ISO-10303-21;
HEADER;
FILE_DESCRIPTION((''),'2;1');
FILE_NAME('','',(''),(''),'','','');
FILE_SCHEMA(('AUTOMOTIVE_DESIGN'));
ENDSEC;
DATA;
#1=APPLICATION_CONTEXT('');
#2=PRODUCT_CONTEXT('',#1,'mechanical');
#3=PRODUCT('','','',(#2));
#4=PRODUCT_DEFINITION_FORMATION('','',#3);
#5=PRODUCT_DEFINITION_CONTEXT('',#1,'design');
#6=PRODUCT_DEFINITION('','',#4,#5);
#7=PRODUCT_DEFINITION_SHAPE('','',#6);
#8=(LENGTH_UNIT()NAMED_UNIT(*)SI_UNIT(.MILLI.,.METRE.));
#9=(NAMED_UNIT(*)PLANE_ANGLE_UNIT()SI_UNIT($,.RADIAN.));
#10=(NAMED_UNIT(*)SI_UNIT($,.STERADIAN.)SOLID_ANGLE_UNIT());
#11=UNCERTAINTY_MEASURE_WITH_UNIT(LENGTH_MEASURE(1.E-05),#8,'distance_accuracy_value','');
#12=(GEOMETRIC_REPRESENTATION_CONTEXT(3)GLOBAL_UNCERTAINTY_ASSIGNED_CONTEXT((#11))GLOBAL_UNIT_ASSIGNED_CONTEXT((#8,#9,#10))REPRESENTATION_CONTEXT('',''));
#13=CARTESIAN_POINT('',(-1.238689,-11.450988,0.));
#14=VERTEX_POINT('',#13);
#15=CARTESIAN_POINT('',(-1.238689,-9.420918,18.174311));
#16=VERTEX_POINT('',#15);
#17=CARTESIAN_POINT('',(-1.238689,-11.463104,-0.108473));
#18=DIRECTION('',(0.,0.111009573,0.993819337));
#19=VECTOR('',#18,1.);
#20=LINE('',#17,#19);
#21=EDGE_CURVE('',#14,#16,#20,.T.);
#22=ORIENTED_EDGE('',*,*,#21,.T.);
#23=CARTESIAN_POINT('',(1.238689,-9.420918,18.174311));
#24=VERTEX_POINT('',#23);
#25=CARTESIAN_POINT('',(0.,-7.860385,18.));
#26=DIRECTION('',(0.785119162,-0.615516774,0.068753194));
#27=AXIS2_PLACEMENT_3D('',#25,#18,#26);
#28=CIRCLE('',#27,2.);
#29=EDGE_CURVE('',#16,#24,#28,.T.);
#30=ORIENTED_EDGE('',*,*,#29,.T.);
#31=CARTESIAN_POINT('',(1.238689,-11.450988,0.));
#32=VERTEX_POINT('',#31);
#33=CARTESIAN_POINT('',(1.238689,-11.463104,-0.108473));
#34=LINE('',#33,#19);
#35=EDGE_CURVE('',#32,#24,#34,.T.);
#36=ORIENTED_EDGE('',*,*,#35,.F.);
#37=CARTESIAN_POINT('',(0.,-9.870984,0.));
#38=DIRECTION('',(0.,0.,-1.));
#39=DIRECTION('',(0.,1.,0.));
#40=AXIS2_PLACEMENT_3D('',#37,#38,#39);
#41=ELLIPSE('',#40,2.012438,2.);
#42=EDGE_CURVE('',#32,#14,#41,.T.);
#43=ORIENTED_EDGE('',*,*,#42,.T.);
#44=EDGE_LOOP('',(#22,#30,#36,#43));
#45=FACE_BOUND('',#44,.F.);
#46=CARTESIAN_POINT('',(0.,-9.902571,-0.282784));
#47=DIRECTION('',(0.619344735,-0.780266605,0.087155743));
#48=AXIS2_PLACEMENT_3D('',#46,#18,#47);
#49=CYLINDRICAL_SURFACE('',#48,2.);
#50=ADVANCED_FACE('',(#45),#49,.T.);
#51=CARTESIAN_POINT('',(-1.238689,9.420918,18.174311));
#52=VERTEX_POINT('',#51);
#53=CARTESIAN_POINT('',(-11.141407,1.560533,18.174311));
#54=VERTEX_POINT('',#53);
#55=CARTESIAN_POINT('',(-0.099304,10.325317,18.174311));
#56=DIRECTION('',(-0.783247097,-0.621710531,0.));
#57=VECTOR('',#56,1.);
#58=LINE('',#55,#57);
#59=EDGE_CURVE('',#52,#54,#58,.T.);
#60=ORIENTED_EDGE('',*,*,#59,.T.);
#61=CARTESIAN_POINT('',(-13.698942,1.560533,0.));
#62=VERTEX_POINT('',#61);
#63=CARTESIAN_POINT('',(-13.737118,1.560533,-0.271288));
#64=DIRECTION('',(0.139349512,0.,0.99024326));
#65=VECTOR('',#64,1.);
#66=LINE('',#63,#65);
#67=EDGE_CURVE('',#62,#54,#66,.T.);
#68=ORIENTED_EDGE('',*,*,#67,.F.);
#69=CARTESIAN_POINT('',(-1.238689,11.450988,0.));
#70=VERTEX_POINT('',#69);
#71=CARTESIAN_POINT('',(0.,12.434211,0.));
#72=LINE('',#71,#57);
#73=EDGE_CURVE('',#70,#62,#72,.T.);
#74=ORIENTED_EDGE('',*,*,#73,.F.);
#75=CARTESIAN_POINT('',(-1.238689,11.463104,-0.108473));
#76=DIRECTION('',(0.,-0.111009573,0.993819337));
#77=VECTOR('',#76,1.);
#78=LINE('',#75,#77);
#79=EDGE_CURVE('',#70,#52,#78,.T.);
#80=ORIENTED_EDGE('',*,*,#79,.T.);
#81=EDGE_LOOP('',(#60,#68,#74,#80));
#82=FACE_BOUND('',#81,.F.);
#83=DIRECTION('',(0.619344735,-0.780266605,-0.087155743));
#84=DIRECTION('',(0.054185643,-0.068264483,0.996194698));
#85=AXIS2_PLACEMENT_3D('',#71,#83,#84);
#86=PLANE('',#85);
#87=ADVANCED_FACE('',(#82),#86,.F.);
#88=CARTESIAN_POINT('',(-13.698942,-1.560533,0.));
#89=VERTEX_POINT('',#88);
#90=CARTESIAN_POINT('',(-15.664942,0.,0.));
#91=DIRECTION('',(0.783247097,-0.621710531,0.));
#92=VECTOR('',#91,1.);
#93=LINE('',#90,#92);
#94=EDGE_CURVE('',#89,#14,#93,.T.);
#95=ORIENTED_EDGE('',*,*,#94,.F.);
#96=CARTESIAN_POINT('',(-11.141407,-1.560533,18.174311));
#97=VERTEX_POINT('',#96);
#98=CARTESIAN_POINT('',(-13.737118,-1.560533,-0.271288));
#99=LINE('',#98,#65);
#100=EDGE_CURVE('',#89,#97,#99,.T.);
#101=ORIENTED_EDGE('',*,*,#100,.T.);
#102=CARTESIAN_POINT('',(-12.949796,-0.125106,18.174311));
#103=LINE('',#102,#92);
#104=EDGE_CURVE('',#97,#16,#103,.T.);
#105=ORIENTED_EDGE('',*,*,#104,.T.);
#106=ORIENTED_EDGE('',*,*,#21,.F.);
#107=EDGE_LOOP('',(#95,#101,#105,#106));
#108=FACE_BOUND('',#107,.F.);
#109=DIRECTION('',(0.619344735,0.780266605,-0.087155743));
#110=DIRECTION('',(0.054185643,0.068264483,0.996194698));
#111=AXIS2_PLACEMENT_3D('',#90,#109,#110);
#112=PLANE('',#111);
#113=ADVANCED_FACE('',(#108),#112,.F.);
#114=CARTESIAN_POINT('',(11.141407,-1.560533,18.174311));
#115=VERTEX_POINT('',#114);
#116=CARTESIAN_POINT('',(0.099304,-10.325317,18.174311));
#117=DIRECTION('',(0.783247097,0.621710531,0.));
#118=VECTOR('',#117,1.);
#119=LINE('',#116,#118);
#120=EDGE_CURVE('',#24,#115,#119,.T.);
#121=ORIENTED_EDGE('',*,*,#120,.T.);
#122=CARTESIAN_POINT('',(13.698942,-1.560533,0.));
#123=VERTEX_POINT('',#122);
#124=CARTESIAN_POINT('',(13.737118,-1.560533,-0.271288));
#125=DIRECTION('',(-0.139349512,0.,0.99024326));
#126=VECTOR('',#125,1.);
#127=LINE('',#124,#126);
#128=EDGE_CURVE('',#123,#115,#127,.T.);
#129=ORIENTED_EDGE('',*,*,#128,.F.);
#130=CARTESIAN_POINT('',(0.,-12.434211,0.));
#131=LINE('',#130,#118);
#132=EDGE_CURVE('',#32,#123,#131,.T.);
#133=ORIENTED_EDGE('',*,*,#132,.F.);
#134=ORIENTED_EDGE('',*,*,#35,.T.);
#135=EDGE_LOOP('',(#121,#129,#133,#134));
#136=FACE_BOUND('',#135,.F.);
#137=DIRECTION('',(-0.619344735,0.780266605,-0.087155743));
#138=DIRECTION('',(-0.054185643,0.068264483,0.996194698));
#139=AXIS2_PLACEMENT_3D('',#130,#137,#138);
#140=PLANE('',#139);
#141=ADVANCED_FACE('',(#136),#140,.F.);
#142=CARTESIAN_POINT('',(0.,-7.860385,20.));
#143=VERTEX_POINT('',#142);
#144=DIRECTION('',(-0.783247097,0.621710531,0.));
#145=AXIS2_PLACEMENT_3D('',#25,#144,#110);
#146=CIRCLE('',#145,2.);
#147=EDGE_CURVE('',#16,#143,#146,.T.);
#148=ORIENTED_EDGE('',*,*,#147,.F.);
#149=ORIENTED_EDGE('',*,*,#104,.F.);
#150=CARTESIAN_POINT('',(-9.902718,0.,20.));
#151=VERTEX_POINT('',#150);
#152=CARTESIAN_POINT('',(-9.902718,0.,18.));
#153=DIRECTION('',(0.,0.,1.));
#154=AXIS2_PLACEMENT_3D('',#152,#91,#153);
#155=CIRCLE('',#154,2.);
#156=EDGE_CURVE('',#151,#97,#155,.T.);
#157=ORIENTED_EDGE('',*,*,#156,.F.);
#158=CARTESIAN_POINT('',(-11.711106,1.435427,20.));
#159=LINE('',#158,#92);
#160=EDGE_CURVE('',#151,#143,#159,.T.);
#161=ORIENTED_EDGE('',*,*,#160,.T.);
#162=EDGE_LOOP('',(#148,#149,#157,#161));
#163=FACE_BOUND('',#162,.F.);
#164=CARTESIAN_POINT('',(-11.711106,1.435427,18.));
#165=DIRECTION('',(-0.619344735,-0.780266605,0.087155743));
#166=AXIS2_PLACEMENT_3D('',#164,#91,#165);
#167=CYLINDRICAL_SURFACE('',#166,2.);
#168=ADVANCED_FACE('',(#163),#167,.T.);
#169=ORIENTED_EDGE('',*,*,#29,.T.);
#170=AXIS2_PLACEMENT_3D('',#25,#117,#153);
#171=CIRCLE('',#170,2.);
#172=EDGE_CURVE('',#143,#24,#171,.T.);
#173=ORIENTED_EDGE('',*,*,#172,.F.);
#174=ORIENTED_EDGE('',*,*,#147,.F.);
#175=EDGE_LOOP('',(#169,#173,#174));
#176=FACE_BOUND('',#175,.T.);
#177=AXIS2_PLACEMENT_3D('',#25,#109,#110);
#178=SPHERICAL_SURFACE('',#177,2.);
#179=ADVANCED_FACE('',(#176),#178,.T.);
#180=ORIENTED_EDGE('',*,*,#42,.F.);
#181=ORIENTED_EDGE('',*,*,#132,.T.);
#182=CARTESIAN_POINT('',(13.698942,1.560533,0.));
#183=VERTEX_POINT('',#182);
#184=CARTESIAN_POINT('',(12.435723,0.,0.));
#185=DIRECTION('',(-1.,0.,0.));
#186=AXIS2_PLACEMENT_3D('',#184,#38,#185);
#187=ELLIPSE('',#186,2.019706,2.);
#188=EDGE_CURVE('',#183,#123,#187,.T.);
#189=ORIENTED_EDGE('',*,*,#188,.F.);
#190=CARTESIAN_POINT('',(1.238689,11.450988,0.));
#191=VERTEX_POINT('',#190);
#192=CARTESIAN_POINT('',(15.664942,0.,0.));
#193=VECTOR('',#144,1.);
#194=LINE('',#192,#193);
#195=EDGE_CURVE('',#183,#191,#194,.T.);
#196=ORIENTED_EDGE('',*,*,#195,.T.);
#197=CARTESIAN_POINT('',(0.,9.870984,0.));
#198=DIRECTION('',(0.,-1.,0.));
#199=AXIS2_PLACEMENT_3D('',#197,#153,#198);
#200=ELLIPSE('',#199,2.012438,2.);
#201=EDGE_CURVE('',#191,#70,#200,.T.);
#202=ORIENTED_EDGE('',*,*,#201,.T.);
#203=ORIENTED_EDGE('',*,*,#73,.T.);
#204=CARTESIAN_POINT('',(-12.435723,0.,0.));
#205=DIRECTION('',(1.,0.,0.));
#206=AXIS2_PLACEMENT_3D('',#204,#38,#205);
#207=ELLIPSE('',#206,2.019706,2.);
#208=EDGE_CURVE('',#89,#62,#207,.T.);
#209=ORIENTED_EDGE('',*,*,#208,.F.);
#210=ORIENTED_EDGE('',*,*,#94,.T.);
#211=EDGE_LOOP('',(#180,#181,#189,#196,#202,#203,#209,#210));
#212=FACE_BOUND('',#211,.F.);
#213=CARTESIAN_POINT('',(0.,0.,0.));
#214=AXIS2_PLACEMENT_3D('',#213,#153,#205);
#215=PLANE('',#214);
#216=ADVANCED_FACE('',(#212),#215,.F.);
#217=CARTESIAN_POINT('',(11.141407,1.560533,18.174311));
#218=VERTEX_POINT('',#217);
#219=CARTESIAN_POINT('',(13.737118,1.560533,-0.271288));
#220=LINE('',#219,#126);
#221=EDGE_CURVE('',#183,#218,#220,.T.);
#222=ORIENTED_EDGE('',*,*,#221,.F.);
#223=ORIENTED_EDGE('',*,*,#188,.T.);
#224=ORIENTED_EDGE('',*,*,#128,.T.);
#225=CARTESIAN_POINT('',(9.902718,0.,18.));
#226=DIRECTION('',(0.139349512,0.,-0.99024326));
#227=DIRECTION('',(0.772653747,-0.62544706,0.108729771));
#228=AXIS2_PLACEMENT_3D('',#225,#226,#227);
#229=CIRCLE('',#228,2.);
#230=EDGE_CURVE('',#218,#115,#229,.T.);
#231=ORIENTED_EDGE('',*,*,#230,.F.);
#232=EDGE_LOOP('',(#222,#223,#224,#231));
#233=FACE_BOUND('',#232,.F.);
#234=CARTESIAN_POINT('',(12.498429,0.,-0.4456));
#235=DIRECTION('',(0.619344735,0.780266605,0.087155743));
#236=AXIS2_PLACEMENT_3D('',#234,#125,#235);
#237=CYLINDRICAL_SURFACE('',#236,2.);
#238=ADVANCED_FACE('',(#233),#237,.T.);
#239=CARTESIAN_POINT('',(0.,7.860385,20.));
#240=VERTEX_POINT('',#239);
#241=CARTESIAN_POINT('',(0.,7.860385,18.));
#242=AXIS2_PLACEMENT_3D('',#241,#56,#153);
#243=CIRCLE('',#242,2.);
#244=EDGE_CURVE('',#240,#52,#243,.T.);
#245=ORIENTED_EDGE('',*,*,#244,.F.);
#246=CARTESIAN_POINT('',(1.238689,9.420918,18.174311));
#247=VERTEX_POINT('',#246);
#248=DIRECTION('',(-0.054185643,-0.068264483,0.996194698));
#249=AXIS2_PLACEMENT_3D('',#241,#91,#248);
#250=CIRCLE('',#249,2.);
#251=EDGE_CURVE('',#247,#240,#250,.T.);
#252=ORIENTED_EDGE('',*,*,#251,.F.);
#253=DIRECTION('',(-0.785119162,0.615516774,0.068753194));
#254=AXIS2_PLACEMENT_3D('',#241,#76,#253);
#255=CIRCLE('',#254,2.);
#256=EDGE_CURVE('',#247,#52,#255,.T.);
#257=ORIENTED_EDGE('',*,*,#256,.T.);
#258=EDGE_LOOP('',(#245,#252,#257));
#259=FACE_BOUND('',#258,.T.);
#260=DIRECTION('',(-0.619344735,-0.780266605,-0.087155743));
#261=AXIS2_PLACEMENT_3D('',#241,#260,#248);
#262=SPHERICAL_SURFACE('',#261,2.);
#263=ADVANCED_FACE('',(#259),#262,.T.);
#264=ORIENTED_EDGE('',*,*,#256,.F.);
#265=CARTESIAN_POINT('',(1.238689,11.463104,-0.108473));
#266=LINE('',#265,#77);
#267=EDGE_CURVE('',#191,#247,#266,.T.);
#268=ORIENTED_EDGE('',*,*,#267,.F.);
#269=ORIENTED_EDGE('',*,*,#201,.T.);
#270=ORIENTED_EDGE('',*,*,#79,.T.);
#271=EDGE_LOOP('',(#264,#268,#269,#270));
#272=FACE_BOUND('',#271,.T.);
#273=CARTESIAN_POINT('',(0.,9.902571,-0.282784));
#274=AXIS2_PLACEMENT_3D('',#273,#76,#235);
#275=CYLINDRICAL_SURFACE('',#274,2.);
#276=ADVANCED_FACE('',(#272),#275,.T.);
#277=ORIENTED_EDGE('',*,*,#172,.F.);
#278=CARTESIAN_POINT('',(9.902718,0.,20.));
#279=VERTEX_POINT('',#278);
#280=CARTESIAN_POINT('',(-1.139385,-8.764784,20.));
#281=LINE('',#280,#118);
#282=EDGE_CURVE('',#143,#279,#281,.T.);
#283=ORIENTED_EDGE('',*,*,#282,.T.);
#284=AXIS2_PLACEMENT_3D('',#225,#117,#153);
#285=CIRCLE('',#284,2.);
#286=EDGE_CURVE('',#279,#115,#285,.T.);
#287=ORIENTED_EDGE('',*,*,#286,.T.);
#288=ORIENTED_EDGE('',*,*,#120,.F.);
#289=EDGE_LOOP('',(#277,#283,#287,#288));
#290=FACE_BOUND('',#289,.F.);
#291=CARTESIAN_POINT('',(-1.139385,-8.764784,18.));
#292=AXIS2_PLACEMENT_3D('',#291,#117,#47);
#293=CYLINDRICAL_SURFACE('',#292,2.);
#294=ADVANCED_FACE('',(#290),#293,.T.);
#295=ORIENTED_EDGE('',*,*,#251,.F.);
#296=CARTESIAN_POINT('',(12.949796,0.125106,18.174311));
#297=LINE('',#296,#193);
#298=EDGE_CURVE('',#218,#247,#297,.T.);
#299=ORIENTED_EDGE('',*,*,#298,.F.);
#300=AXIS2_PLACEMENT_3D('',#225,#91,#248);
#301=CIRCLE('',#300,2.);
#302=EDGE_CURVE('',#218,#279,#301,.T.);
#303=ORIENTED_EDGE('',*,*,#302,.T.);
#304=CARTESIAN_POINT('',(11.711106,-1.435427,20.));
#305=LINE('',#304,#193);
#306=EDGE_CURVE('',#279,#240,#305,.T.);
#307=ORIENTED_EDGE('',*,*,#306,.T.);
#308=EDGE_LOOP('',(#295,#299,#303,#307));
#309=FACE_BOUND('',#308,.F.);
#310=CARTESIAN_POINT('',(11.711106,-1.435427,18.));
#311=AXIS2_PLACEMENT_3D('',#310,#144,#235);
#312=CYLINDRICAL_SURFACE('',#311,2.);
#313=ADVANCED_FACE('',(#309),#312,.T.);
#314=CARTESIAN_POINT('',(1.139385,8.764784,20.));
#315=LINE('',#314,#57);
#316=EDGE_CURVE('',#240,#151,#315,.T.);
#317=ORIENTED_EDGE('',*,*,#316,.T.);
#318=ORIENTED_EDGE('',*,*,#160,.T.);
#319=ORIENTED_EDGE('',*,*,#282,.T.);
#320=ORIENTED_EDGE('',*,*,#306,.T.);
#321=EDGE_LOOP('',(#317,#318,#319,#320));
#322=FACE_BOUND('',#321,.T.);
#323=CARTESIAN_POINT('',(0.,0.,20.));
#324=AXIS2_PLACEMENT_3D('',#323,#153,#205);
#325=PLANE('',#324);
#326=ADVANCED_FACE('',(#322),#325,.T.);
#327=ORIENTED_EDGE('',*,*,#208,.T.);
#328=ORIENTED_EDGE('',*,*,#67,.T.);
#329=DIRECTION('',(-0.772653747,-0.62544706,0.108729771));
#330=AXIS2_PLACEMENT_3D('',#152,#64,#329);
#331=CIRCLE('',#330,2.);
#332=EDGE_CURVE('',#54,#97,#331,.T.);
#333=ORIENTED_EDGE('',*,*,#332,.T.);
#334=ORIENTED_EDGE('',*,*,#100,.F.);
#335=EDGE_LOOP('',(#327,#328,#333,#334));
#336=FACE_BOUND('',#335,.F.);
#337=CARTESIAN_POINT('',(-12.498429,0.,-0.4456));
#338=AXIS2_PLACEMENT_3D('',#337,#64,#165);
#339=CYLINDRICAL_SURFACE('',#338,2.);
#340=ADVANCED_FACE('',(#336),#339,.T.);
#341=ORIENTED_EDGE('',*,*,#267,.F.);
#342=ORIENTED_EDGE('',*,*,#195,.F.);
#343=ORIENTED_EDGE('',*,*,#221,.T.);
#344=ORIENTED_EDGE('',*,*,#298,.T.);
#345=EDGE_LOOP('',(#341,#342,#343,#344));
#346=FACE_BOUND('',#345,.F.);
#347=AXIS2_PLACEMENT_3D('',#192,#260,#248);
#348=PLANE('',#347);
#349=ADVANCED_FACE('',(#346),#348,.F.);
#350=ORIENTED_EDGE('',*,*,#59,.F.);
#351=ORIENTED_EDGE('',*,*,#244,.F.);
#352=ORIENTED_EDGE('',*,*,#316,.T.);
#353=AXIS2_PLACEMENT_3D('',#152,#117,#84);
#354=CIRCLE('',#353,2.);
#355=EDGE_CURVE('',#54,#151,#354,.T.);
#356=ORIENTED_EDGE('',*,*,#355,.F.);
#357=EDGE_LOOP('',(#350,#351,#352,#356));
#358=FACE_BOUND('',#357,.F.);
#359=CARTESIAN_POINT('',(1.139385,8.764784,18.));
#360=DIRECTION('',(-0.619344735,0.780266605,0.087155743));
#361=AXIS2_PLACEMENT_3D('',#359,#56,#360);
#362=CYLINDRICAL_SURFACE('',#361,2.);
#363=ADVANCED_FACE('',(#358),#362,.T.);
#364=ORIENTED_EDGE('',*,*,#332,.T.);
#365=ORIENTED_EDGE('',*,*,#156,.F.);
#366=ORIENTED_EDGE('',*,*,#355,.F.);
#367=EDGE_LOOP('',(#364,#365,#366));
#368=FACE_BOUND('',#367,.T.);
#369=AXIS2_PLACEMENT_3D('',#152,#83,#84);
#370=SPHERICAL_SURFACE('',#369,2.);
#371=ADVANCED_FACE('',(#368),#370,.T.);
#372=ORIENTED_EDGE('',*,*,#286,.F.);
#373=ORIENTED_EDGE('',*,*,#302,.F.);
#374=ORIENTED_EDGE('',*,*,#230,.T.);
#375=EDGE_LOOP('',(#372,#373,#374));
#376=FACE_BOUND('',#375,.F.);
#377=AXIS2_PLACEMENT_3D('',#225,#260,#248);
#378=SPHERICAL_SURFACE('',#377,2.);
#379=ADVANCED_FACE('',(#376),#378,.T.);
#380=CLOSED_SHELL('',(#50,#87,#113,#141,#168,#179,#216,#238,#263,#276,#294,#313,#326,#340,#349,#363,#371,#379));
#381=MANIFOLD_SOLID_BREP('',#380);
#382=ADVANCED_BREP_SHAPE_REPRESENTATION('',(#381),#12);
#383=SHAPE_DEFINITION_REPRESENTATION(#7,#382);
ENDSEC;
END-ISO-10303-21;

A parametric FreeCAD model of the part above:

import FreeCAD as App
import Part
import Sketcher


def edges_at(feature, points):
    """Names of the edges that pass closest to the given points."""
    edges = feature.Shape.Edges
    near = lambda p: min(range(len(edges)), key=lambda i: edges[i].distToShape(Part.Vertex(*p))[0])
    return sorted({f"Edge{near(p) + 1}" for p in points})


def add_polygon(sketch, points):
    """Adds a closed chain of lines whose ends are joined by coincident constraints."""
    first, n = sketch.GeometryCount, len(points)
    for a, b in zip(points, points[1:] + points[:1]):
        sketch.addGeometry(Part.LineSegment(App.Vector(*a, 0), App.Vector(*b, 0)), False)
    for i in range(n):
        sketch.addConstraint(Sketcher.Constraint("Coincident", first + i, 2, first + (i + 1) % n, 1))

doc = App.newDocument("Part")
body = doc.addObject("PartDesign::Body", "Body")

sketch1 = doc.addObject("Sketcher::SketchObject", "Sketch")
body.addObject(sketch1)
sketch1.AttachmentSupport = (doc.XY_Plane, [""])
sketch1.MapMode = "FlatFace"
add_polygon(sketch1, [(16, 0), (0, 12), (-16, 0), (0, -12)])
sketch1.addConstraint(Sketcher.Constraint("Symmetric", 0, 2, 2, 2, -1, 1))
sketch1.addConstraint(Sketcher.Constraint("Symmetric", 1, 2, 3, 2, -1, 1))
sketch1.addConstraint(Sketcher.Constraint("PointOnObject", 0, 2, -2))
sketch1.addConstraint(Sketcher.Constraint("PointOnObject", 1, 2, -1))
sketch1.addConstraint(Sketcher.Constraint("Distance", 0, 20.0))
sketch1.addConstraint(Sketcher.Constraint("DistanceY", -1, 1, 0, 2, 12.434211))
pad1 = doc.addObject("PartDesign::Pad", "Pad")
body.addObject(pad1)
pad1.Profile = sketch1
pad1.Length = 20
pad1.TaperAngle = -5
doc.recompute()

fillet = doc.addObject("PartDesign::Fillet", "Fillet")
body.addObject(fillet)
fillet.Base = (pad1, edges_at(pad1, [
    (6.425, -5.1, 20),
    (-6.425, -5.1, 20),
    (-6.425, 5.1, 20),
    (6.425, 5.1, 20),
    (-14.258, 0, 10),
    (0, 11.317, 10),
    (14.258, 0, 10),
    (0, -11.317, 10),
]))
fillet.Radius = 2

doc.recompute()
